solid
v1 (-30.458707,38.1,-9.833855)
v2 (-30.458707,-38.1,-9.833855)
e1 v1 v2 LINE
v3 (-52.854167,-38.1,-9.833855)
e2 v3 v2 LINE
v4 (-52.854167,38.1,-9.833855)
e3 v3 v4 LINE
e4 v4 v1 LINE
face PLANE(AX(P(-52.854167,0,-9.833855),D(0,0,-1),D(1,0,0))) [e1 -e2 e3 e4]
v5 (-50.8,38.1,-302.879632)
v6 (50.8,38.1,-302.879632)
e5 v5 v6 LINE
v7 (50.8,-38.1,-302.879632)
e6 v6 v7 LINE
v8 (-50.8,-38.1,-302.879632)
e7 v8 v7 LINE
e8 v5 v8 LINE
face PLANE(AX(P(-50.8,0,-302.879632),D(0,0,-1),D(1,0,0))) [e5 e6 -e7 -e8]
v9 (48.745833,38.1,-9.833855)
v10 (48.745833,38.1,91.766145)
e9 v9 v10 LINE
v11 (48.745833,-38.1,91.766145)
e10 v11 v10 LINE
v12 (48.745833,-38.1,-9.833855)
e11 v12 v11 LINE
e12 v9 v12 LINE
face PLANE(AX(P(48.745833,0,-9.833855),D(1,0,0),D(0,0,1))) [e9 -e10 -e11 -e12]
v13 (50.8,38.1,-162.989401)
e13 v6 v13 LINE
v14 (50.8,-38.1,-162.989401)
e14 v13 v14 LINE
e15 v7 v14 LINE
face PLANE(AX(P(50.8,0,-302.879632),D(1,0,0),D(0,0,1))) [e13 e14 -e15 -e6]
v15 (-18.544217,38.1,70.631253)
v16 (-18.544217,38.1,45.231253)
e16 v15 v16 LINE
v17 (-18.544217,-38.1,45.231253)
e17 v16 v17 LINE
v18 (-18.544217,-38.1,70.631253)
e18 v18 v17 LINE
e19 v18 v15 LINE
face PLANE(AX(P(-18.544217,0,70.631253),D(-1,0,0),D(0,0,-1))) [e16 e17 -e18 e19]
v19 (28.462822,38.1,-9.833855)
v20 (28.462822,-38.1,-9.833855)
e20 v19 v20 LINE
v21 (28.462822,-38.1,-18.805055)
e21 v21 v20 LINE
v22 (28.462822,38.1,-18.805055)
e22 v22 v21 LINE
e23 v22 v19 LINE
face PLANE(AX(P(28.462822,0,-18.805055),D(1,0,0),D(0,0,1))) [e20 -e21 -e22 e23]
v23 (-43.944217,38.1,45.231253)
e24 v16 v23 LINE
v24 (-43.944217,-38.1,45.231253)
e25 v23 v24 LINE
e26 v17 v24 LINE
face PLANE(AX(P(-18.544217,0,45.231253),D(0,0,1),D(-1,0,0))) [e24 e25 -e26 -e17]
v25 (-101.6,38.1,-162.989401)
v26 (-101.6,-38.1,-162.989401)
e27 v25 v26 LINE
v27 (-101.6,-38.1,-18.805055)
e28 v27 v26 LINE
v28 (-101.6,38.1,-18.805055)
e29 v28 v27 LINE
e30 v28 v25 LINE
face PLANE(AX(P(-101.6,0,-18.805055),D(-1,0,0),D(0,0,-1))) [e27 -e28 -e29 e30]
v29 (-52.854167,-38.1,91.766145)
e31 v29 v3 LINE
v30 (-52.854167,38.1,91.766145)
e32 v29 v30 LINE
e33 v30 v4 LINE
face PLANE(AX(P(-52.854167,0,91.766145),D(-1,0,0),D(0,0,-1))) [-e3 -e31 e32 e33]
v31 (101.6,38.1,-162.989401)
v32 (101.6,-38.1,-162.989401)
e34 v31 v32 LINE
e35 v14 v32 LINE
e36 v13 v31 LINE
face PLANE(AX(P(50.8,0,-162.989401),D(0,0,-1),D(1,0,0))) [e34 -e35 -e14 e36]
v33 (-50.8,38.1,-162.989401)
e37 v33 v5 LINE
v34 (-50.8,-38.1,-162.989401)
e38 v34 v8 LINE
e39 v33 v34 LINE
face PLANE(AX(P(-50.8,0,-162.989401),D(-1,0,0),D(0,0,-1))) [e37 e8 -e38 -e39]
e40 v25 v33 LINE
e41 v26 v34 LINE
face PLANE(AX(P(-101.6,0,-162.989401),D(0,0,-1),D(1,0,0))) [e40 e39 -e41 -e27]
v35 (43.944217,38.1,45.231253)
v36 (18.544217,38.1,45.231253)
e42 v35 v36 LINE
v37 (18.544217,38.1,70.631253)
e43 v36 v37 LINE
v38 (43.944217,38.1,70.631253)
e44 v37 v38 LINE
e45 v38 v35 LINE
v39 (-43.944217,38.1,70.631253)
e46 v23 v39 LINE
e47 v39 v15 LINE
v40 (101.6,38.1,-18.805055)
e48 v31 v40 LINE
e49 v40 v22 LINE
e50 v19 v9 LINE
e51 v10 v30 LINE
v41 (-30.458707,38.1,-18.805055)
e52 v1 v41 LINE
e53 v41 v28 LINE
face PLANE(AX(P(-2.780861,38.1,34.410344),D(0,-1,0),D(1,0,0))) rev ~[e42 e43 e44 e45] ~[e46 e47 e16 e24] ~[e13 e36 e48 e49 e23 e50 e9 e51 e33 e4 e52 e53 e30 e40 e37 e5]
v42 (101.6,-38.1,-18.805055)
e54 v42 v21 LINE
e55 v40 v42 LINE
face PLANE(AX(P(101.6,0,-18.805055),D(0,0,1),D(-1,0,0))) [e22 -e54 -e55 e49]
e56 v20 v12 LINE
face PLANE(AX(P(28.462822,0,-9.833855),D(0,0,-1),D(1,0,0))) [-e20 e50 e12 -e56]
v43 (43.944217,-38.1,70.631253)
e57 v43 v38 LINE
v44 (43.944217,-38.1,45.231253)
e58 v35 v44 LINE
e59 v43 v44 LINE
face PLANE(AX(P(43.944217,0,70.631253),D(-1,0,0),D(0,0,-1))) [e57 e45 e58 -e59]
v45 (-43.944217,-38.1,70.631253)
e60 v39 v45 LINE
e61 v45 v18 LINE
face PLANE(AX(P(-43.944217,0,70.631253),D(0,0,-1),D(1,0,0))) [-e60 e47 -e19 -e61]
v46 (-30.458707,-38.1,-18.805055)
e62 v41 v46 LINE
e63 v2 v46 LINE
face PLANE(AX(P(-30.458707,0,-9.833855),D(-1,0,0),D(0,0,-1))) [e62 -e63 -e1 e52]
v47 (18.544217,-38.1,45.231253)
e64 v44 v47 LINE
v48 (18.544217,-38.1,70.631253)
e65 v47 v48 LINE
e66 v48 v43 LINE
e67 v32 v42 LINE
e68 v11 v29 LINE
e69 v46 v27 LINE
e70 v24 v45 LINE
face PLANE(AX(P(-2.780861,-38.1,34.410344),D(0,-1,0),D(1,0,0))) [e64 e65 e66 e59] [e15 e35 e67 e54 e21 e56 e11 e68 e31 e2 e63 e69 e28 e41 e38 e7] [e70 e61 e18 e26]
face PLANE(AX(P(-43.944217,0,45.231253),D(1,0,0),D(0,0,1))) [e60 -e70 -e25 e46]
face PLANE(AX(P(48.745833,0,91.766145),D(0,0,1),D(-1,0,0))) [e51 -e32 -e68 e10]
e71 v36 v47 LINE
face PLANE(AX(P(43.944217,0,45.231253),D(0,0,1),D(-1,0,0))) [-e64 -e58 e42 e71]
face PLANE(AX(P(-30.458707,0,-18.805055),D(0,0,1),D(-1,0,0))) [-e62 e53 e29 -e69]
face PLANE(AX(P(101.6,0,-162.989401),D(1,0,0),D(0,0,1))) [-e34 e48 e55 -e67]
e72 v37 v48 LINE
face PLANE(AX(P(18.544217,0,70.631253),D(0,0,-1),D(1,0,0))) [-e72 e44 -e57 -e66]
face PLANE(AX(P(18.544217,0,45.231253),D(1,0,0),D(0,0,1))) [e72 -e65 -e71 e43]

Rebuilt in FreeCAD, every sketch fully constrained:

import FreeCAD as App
import Part
import Sketcher

V = App.Vector
Q = App.Units.Quantity

doc = App.newDocument("Part")
body = doc.addObject("PartDesign::Body", "Body")

sketch1 = body.newObject("Sketcher::SketchObject", "Sketch")
sketch1.AttachmentSupport = (doc.getObject("XZ_Plane"), [""])
sketch1.MapMode = "FlatFace"
sketch1.addGeometry(Part.LineSegment(V(-53, -10, 0), V(-30, -10, 0)), False)
sketch1.addGeometry(Part.LineSegment(V(-30, -10, 0), V(-30, -19, 0)), False)
sketch1.addGeometry(Part.LineSegment(V(-30, -19, 0), V(-102, -19, 0)), False)
sketch1.addGeometry(Part.LineSegment(V(-102, -19, 0), V(-102, -163, 0)), False)
sketch1.addGeometry(Part.LineSegment(V(-102, -163, 0), V(-51, -163, 0)), False)
sketch1.addGeometry(Part.LineSegment(V(-51, -163, 0), V(-51, -303, 0)), False)
sketch1.addGeometry(Part.LineSegment(V(-51, -303, 0), V(51, -303, 0)), False)
sketch1.addGeometry(Part.LineSegment(V(51, -303, 0), V(51, -163, 0)), False)
sketch1.addGeometry(Part.LineSegment(V(51, -163, 0), V(102, -163, 0)), False)
sketch1.addGeometry(Part.LineSegment(V(102, -163, 0), V(102, -19, 0)), False)
sketch1.addGeometry(Part.LineSegment(V(102, -19, 0), V(28, -19, 0)), False)
sketch1.addGeometry(Part.LineSegment(V(28, -19, 0), V(28, -10, 0)), False)
sketch1.addGeometry(Part.LineSegment(V(28, -10, 0), V(49, -10, 0)), False)
sketch1.addGeometry(Part.LineSegment(V(49, -10, 0), V(49, 92, 0)), False)
sketch1.addGeometry(Part.LineSegment(V(49, 92, 0), V(-53, 92, 0)), False)
sketch1.addGeometry(Part.LineSegment(V(-53, 92, 0), V(-53, -10, 0)), False)
sketch1.addGeometry(Part.LineSegment(V(-19, 71, 0), V(-19, 45, 0)), False)
sketch1.addGeometry(Part.LineSegment(V(-19, 45, 0), V(-44, 45, 0)), False)
sketch1.addGeometry(Part.LineSegment(V(-44, 45, 0), V(-44, 71, 0)), False)
sketch1.addGeometry(Part.LineSegment(V(-44, 71, 0), V(-19, 71, 0)), False)
sketch1.addGeometry(Part.LineSegment(V(44, 71, 0), V(44, 45, 0)), False)
sketch1.addGeometry(Part.LineSegment(V(44, 45, 0), V(19, 45, 0)), False)
sketch1.addGeometry(Part.LineSegment(V(19, 45, 0), V(19, 71, 0)), False)
sketch1.addGeometry(Part.LineSegment(V(19, 71, 0), V(44, 71, 0)), False)
sketch1.addConstraint(Sketcher.Constraint("Coincident", 0, 2, 1, 1))
sketch1.addConstraint(Sketcher.Constraint("Coincident", 1, 2, 2, 1))
sketch1.addConstraint(Sketcher.Constraint("Coincident", 2, 2, 3, 1))
sketch1.addConstraint(Sketcher.Constraint("Coincident", 3, 2, 4, 1))
sketch1.addConstraint(Sketcher.Constraint("Coincident", 4, 2, 5, 1))
sketch1.addConstraint(Sketcher.Constraint("Coincident", 5, 2, 6, 1))
sketch1.addConstraint(Sketcher.Constraint("Coincident", 6, 2, 7, 1))
sketch1.addConstraint(Sketcher.Constraint("Coincident", 7, 2, 8, 1))
sketch1.addConstraint(Sketcher.Constraint("Coincident", 8, 2, 9, 1))
sketch1.addConstraint(Sketcher.Constraint("Coincident", 9, 2, 10, 1))
sketch1.addConstraint(Sketcher.Constraint("Coincident", 10, 2, 11, 1))
sketch1.addConstraint(Sketcher.Constraint("Coincident", 11, 2, 12, 1))
sketch1.addConstraint(Sketcher.Constraint("Coincident", 12, 2, 13, 1))
sketch1.addConstraint(Sketcher.Constraint("Coincident", 13, 2, 14, 1))
sketch1.addConstraint(Sketcher.Constraint("Coincident", 14, 2, 15, 1))
sketch1.addConstraint(Sketcher.Constraint("Coincident", 15, 2, 0, 1))
sketch1.addConstraint(Sketcher.Constraint("Coincident", 16, 2, 17, 1))
sketch1.addConstraint(Sketcher.Constraint("Coincident", 17, 2, 18, 1))
sketch1.addConstraint(Sketcher.Constraint("Coincident", 18, 2, 19, 1))
sketch1.addConstraint(Sketcher.Constraint("Coincident", 19, 2, 16, 1))
sketch1.addConstraint(Sketcher.Constraint("Coincident", 20, 2, 21, 1))
sketch1.addConstraint(Sketcher.Constraint("Coincident", 21, 2, 22, 1))
sketch1.addConstraint(Sketcher.Constraint("Coincident", 22, 2, 23, 1))
sketch1.addConstraint(Sketcher.Constraint("Coincident", 23, 2, 20, 1))
sketch1.addConstraint(Sketcher.Constraint("Horizontal", 0))
sketch1.addConstraint(Sketcher.Constraint("Vertical", 1))
sketch1.addConstraint(Sketcher.Constraint("Horizontal", 2))
sketch1.addConstraint(Sketcher.Constraint("Vertical", 3))
sketch1.addConstraint(Sketcher.Constraint("Horizontal", 4))
sketch1.addConstraint(Sketcher.Constraint("Vertical", 5))
sketch1.addConstraint(Sketcher.Constraint("Horizontal", 6))
sketch1.addConstraint(Sketcher.Constraint("Vertical", 7))
sketch1.addConstraint(Sketcher.Constraint("Horizontal", 8))
sketch1.addConstraint(Sketcher.Constraint("Vertical", 9))
sketch1.addConstraint(Sketcher.Constraint("Horizontal", 10))
sketch1.addConstraint(Sketcher.Constraint("Vertical", 11))
sketch1.addConstraint(Sketcher.Constraint("Horizontal", 12))
sketch1.addConstraint(Sketcher.Constraint("Vertical", 13))
sketch1.addConstraint(Sketcher.Constraint("Horizontal", 14))
sketch1.addConstraint(Sketcher.Constraint("Vertical", 15))
sketch1.addConstraint(Sketcher.Constraint("Vertical", 16))
sketch1.addConstraint(Sketcher.Constraint("Horizontal", 17))
sketch1.addConstraint(Sketcher.Constraint("Vertical", 18))
sketch1.addConstraint(Sketcher.Constraint("Horizontal", 19))
sketch1.addConstraint(Sketcher.Constraint("Vertical", 20))
sketch1.addConstraint(Sketcher.Constraint("Horizontal", 21))
sketch1.addConstraint(Sketcher.Constraint("Vertical", 22))
sketch1.addConstraint(Sketcher.Constraint("Horizontal", 23))
sketch1.addConstraint(Sketcher.Constraint("Symmetric", 4, 2, 7, 2, -2))
sketch1.addConstraint(Sketcher.Constraint("Symmetric", 2, 2, 9, 2, -2))
sketch1.addConstraint(Sketcher.Constraint("Symmetric", 17, 2, 20, 2, -2))
sketch1.addConstraint(Sketcher.Constraint("Symmetric", 19, 2, 22, 2, -2))
sketch1.addConstraint(Sketcher.Constraint("Horizontal", 0, 2, 11, 2))
sketch1.addConstraint(Sketcher.Constraint("Equal", 6, 14))
sketch1.addConstraint(Sketcher.Constraint("Equal", 14, 13))
sketch1.addConstraint(Sketcher.Constraint("Equal", 23, 16))
sketch1.addConstraint(Sketcher.Constraint("DistanceX", 4, 1, 4, 2, Q("2 in")))
sketch1.addConstraint(Sketcher.Constraint("DistanceX", 6, 1, 6, 2, Q("4 in")))
sketch1.addConstraint(Sketcher.Constraint("DistanceX", 17, 2, 17, 1, Q("1 in")))
sketch1.addConstraint(Sketcher.Constraint("DistanceY", 1, 2, 1, 1, 8.9712))
sketch1.addConstraint(Sketcher.Constraint("DistanceX", 0, 1, 0, 2, 22.39546))
sketch1.addConstraint(Sketcher.Constraint("DistanceX", 10, 2, 10, 1, 73.137178))
sketch1.addConstraint(Sketcher.Constraint("DistanceX", 12, 1, 12, 2, 20.283011))
sketch1.addConstraint(Sketcher.Constraint("DistanceY", 5, 2, 5, 1, 139.890231))
sketch1.addConstraint(Sketcher.Constraint("DistanceY", 3, 2, -1, 1, 162.989401))
sketch1.addConstraint(Sketcher.Constraint("DistanceY", 3, 2, 3, 1, 144.184346))
sketch1.addConstraint(Sketcher.Constraint("DistanceX", 0, 2, 16, 2, 11.91449))
sketch1.addConstraint(Sketcher.Constraint("DistanceY", -1, 1, 16, 2, 45.231253))
pad1 = body.newObject("PartDesign::Pad", "Pad")
pad1.Profile = sketch1
pad1.Length = Q("3 in")
pad1.Midplane = True

doc.recompute()
